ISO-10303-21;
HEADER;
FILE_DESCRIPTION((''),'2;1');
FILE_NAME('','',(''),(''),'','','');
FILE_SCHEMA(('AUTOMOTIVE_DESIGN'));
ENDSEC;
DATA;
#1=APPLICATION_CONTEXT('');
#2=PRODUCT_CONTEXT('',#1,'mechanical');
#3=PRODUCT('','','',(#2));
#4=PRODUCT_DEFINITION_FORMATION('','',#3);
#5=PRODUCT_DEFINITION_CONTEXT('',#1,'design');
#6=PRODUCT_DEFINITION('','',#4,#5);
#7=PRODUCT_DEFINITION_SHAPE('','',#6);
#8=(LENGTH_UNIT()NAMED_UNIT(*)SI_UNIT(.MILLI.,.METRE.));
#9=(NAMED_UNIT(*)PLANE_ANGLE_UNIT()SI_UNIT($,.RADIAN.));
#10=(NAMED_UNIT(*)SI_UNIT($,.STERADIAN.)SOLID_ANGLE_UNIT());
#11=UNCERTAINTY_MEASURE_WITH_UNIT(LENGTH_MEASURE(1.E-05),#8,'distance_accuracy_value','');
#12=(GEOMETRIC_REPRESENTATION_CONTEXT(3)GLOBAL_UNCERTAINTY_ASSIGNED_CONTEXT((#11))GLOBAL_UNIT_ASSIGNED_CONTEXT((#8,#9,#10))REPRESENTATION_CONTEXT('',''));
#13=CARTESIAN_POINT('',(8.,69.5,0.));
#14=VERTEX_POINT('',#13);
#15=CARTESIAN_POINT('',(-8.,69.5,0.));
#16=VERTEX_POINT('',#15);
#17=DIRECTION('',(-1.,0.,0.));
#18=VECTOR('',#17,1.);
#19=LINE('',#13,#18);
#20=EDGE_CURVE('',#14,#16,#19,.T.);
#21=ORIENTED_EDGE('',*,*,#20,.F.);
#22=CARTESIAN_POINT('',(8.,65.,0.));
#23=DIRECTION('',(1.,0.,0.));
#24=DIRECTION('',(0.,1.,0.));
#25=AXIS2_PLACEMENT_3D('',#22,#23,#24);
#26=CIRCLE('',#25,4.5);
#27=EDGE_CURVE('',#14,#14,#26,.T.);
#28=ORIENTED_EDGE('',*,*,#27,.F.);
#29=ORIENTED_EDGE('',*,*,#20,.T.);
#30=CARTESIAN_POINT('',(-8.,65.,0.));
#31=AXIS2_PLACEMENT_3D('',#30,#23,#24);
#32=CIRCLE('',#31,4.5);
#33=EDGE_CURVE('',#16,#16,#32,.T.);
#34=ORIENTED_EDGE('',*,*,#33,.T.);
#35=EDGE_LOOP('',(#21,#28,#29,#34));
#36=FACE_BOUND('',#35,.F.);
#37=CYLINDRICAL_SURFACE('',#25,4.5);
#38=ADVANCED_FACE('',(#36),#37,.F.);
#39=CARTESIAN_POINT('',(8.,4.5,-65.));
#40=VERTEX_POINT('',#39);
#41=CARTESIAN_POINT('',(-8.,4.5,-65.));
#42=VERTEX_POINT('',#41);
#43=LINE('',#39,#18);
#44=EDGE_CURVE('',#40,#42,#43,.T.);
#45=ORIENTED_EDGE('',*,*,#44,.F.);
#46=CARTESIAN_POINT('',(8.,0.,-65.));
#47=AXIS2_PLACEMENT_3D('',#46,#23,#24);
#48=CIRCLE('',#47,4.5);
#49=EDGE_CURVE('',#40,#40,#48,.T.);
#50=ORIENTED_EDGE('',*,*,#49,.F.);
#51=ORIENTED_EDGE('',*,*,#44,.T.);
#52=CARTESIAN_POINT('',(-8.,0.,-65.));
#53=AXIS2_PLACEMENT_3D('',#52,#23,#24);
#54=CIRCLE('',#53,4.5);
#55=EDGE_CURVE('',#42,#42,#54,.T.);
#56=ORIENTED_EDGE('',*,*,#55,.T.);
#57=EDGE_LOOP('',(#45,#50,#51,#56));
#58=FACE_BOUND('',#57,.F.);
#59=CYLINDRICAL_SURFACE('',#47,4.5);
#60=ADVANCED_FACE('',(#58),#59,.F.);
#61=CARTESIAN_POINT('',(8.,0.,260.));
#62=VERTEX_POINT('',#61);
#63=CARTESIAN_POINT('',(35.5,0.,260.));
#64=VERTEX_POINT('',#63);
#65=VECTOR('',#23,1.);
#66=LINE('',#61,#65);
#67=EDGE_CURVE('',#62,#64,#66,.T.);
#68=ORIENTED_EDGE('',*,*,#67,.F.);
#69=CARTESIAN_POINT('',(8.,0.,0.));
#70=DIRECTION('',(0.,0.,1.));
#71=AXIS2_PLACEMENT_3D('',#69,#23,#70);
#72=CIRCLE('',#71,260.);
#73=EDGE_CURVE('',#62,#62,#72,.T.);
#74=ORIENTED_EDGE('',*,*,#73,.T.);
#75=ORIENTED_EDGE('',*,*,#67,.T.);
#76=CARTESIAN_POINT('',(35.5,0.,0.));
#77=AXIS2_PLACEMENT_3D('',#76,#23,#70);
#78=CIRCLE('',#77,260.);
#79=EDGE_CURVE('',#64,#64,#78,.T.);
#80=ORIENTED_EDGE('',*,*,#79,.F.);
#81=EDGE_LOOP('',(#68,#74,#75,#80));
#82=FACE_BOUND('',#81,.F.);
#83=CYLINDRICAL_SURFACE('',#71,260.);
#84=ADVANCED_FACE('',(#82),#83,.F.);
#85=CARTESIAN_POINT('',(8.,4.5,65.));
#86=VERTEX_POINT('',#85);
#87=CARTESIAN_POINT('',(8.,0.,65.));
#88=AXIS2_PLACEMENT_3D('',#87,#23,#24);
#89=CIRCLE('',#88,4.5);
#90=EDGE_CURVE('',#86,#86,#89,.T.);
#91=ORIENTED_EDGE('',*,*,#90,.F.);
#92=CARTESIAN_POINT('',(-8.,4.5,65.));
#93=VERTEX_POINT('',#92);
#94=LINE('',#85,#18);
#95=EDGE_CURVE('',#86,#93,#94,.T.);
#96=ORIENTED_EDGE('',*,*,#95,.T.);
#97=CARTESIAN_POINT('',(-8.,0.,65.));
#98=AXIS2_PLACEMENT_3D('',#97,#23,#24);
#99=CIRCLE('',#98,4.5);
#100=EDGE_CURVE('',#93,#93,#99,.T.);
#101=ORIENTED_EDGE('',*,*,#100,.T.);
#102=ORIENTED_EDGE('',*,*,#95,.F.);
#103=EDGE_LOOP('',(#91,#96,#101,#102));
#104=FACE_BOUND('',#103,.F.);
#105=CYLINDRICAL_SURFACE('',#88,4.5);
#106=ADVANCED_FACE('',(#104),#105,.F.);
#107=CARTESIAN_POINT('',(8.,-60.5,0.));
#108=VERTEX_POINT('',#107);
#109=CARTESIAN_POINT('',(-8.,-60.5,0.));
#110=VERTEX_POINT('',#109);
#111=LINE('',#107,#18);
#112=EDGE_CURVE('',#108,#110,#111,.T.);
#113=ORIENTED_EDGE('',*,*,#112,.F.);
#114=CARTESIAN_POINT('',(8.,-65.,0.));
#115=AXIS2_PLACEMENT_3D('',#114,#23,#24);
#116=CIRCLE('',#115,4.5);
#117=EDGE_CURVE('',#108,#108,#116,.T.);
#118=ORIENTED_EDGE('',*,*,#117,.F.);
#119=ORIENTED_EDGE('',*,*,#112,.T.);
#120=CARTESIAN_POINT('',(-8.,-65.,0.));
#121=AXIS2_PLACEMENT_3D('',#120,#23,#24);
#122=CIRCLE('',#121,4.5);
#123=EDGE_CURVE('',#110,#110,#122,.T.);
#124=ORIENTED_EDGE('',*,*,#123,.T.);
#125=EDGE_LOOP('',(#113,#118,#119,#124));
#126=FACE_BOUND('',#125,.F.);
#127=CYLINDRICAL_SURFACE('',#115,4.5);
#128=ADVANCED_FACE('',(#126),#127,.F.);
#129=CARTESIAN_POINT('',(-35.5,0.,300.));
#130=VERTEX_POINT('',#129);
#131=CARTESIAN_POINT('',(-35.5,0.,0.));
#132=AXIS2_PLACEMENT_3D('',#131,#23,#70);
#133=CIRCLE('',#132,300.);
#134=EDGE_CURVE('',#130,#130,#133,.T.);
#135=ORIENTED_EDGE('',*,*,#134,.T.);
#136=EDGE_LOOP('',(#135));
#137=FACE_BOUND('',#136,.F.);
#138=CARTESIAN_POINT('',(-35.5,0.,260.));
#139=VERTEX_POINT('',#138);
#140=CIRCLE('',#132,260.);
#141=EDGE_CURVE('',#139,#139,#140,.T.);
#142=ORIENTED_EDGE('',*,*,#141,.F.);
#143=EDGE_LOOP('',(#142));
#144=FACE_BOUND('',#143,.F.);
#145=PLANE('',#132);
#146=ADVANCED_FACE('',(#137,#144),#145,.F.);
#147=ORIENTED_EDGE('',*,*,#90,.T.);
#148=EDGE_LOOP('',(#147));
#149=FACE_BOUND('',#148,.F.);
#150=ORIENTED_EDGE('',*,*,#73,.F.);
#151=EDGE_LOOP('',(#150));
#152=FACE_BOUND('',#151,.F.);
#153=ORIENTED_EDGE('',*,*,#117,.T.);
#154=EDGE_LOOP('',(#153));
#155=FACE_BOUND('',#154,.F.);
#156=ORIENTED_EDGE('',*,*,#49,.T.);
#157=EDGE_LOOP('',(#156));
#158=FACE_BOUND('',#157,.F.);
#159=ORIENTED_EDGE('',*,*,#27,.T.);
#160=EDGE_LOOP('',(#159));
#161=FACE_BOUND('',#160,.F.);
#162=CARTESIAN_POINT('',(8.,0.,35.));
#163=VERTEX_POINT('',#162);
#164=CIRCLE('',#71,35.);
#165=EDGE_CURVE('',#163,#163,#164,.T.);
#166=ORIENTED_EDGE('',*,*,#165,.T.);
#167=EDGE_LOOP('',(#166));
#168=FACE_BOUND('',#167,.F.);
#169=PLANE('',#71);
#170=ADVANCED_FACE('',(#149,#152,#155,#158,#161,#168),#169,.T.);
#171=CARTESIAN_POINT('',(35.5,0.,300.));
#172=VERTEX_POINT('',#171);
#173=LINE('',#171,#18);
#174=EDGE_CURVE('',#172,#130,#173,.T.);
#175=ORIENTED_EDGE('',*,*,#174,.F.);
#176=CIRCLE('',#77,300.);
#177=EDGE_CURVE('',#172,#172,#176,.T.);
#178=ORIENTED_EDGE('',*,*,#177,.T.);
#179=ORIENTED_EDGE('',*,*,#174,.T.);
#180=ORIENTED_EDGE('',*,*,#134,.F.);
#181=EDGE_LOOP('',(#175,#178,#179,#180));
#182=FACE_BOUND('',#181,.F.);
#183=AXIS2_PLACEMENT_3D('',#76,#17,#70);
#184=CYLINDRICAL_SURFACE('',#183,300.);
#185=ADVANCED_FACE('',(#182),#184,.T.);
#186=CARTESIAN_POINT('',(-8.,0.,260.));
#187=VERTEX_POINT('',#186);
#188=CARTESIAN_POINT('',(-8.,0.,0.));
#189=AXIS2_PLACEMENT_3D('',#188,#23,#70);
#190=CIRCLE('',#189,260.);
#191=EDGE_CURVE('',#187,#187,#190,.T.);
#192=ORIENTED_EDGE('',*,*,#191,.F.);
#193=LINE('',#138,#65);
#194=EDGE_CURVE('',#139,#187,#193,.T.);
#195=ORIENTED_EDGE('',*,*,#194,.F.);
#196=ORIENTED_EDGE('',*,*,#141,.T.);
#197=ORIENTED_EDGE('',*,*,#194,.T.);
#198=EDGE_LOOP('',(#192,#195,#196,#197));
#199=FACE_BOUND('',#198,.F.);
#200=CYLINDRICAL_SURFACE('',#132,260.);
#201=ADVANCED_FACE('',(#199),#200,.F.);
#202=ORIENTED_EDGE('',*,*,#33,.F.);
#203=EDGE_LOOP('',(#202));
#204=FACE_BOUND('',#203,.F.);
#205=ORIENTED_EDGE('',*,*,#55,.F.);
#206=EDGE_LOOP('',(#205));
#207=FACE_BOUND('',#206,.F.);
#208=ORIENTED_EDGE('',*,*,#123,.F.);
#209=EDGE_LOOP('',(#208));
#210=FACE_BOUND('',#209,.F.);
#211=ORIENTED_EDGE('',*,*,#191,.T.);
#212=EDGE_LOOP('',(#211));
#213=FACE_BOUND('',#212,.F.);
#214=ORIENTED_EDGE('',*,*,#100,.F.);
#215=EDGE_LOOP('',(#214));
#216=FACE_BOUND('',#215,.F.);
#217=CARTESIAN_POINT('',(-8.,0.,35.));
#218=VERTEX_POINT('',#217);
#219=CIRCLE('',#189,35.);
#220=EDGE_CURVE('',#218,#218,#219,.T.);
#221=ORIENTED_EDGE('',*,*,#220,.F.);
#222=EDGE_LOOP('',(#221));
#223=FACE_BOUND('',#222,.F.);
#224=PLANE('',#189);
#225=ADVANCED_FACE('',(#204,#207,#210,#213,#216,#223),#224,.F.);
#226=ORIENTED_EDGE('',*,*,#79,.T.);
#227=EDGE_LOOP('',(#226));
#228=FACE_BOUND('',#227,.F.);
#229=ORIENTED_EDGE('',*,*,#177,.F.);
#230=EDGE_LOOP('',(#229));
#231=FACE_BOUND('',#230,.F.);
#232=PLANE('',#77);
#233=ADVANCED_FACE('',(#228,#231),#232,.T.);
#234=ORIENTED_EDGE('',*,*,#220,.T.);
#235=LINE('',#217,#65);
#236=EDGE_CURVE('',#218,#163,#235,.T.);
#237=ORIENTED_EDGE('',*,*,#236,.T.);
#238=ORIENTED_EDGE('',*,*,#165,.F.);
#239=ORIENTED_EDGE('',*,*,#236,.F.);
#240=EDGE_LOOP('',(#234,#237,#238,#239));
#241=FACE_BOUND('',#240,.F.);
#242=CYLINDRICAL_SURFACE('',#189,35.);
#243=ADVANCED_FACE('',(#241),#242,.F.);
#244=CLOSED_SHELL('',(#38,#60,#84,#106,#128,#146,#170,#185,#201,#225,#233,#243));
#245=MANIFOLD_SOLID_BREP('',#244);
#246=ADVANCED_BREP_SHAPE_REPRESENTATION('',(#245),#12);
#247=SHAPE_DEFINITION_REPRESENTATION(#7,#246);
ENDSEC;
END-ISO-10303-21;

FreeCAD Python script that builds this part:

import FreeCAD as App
import Part
import Sketcher

V = App.Vector
Q = App.Units.Quantity


def add_polygon(sketch, points):
    """Adds a closed chain of lines whose ends are joined by coincident constraints."""
    first, n = sketch.GeometryCount, len(points)
    for a, b in zip(points, points[1:] + points[:1]):
        sketch.addGeometry(Part.LineSegment(App.Vector(*a, 0), App.Vector(*b, 0)), False)
    for i in range(n):
        sketch.addConstraint(Sketcher.Constraint("Coincident", first + i, 2, first + (i + 1) % n, 1))

doc = App.newDocument("Part")
body = doc.addObject("PartDesign::Body", "Body")

sketch1 = body.newObject("Sketcher::SketchObject", "Sketch")
sketch1.AttachmentSupport = (doc.getObject("XZ_Plane"), [""])
sketch1.MapMode = "FlatFace"
add_polygon(sketch1, [(-8, 35), (8, 35), (8, 260), (36, 260), (36, 300), (-36, 300), (-36, 260), (-8, 260)])
sketch1.addConstraint(Sketcher.Constraint("Horizontal", 0))
sketch1.addConstraint(Sketcher.Constraint("Vertical", 1))
sketch1.addConstraint(Sketcher.Constraint("Horizontal", 2))
sketch1.addConstraint(Sketcher.Constraint("Vertical", 3))
sketch1.addConstraint(Sketcher.Constraint("Horizontal", 4))
sketch1.addConstraint(Sketcher.Constraint("Vertical", 5))
sketch1.addConstraint(Sketcher.Constraint("Horizontal", 6))
sketch1.addConstraint(Sketcher.Constraint("Vertical", 7))
sketch1.addConstraint(Sketcher.Constraint("Symmetric", 2, 2, 5, 2, -2))
sketch1.addConstraint(Sketcher.Constraint("Equal", 2, 6))
sketch1.addConstraint(Sketcher.Constraint("DistanceX", 0, 1, 0, 2, Q("16 mm")))
sketch1.addConstraint(Sketcher.Constraint("DistanceX", 4, 2, 4, 1, Q("71 mm")))
sketch1.addConstraint(Sketcher.Constraint("DistanceY", 1, 1, 1, 2, Q("225 mm")))
sketch1.addConstraint(Sketcher.Constraint("DistanceY", 3, 1, 3, 2, Q("40 mm")))
sketch1.addConstraint(Sketcher.Constraint("DistanceY", -1, 1, 0, 2, Q("35 mm")))
revolution = body.newObject("PartDesign::Revolution", "Revolution")
revolution.Profile = sketch1
revolution.ReferenceAxis = (sketch1, ["H_Axis"])
revolution.Angle = 360

sketch2 = body.newObject("Sketcher::SketchObject", "Sketch001")
sketch2.AttachmentSupport = (doc.getObject("YZ_Plane"), [""])
sketch2.MapMode = "FlatFace"
sketch2.AttachmentOffset = App.Placement(V(0, 0, 8), App.Rotation())
sketch2.addGeometry(Part.Circle(V(0, 65, 0), V(0, 0, 1), 4.5), False)
sketch2.addGeometry(Part.Circle(V(-65, 0, 0), V(0, 0, 1), 4.5), False)
sketch2.addGeometry(Part.Circle(V(0, -65, 0), V(0, 0, 1), 4.5), False)
sketch2.addGeometry(Part.Circle(V(65, 0, 0), V(0, 0, 1), 4.5), False)
sketch2.addConstraint(Sketcher.Constraint("Equal", 0, 1))
sketch2.addConstraint(Sketcher.Constraint("Equal", 1, 2))
sketch2.addConstraint(Sketcher.Constraint("Equal", 2, 3))
sketch2.addConstraint(Sketcher.Constraint("Symmetric", 0, 3, 2, 3, -1, 1))
sketch2.addConstraint(Sketcher.Constraint("Symmetric", 1, 3, 3, 3, -1, 1))
sketch2.addConstraint(Sketcher.Constraint("PointOnObject", 0, 3, -2))
sketch2.addConstraint(Sketcher.Constraint("PointOnObject", 1, 3, -1))
sketch2.addConstraint(Sketcher.Constraint("Diameter", 0, Q("9 mm")))
sketch2.addConstraint(Sketcher.Constraint("DistanceY", -1, 1, 0, 3, Q("65 mm")))
sketch2.addConstraint(Sketcher.Constraint("DistanceX", 1, 3, -1, 1, Q("65 mm")))
pocket1 = body.newObject("PartDesign::Pocket", "Pocket")
pocket1.Profile = sketch2
pocket1.Length = 25

doc.recompute()
